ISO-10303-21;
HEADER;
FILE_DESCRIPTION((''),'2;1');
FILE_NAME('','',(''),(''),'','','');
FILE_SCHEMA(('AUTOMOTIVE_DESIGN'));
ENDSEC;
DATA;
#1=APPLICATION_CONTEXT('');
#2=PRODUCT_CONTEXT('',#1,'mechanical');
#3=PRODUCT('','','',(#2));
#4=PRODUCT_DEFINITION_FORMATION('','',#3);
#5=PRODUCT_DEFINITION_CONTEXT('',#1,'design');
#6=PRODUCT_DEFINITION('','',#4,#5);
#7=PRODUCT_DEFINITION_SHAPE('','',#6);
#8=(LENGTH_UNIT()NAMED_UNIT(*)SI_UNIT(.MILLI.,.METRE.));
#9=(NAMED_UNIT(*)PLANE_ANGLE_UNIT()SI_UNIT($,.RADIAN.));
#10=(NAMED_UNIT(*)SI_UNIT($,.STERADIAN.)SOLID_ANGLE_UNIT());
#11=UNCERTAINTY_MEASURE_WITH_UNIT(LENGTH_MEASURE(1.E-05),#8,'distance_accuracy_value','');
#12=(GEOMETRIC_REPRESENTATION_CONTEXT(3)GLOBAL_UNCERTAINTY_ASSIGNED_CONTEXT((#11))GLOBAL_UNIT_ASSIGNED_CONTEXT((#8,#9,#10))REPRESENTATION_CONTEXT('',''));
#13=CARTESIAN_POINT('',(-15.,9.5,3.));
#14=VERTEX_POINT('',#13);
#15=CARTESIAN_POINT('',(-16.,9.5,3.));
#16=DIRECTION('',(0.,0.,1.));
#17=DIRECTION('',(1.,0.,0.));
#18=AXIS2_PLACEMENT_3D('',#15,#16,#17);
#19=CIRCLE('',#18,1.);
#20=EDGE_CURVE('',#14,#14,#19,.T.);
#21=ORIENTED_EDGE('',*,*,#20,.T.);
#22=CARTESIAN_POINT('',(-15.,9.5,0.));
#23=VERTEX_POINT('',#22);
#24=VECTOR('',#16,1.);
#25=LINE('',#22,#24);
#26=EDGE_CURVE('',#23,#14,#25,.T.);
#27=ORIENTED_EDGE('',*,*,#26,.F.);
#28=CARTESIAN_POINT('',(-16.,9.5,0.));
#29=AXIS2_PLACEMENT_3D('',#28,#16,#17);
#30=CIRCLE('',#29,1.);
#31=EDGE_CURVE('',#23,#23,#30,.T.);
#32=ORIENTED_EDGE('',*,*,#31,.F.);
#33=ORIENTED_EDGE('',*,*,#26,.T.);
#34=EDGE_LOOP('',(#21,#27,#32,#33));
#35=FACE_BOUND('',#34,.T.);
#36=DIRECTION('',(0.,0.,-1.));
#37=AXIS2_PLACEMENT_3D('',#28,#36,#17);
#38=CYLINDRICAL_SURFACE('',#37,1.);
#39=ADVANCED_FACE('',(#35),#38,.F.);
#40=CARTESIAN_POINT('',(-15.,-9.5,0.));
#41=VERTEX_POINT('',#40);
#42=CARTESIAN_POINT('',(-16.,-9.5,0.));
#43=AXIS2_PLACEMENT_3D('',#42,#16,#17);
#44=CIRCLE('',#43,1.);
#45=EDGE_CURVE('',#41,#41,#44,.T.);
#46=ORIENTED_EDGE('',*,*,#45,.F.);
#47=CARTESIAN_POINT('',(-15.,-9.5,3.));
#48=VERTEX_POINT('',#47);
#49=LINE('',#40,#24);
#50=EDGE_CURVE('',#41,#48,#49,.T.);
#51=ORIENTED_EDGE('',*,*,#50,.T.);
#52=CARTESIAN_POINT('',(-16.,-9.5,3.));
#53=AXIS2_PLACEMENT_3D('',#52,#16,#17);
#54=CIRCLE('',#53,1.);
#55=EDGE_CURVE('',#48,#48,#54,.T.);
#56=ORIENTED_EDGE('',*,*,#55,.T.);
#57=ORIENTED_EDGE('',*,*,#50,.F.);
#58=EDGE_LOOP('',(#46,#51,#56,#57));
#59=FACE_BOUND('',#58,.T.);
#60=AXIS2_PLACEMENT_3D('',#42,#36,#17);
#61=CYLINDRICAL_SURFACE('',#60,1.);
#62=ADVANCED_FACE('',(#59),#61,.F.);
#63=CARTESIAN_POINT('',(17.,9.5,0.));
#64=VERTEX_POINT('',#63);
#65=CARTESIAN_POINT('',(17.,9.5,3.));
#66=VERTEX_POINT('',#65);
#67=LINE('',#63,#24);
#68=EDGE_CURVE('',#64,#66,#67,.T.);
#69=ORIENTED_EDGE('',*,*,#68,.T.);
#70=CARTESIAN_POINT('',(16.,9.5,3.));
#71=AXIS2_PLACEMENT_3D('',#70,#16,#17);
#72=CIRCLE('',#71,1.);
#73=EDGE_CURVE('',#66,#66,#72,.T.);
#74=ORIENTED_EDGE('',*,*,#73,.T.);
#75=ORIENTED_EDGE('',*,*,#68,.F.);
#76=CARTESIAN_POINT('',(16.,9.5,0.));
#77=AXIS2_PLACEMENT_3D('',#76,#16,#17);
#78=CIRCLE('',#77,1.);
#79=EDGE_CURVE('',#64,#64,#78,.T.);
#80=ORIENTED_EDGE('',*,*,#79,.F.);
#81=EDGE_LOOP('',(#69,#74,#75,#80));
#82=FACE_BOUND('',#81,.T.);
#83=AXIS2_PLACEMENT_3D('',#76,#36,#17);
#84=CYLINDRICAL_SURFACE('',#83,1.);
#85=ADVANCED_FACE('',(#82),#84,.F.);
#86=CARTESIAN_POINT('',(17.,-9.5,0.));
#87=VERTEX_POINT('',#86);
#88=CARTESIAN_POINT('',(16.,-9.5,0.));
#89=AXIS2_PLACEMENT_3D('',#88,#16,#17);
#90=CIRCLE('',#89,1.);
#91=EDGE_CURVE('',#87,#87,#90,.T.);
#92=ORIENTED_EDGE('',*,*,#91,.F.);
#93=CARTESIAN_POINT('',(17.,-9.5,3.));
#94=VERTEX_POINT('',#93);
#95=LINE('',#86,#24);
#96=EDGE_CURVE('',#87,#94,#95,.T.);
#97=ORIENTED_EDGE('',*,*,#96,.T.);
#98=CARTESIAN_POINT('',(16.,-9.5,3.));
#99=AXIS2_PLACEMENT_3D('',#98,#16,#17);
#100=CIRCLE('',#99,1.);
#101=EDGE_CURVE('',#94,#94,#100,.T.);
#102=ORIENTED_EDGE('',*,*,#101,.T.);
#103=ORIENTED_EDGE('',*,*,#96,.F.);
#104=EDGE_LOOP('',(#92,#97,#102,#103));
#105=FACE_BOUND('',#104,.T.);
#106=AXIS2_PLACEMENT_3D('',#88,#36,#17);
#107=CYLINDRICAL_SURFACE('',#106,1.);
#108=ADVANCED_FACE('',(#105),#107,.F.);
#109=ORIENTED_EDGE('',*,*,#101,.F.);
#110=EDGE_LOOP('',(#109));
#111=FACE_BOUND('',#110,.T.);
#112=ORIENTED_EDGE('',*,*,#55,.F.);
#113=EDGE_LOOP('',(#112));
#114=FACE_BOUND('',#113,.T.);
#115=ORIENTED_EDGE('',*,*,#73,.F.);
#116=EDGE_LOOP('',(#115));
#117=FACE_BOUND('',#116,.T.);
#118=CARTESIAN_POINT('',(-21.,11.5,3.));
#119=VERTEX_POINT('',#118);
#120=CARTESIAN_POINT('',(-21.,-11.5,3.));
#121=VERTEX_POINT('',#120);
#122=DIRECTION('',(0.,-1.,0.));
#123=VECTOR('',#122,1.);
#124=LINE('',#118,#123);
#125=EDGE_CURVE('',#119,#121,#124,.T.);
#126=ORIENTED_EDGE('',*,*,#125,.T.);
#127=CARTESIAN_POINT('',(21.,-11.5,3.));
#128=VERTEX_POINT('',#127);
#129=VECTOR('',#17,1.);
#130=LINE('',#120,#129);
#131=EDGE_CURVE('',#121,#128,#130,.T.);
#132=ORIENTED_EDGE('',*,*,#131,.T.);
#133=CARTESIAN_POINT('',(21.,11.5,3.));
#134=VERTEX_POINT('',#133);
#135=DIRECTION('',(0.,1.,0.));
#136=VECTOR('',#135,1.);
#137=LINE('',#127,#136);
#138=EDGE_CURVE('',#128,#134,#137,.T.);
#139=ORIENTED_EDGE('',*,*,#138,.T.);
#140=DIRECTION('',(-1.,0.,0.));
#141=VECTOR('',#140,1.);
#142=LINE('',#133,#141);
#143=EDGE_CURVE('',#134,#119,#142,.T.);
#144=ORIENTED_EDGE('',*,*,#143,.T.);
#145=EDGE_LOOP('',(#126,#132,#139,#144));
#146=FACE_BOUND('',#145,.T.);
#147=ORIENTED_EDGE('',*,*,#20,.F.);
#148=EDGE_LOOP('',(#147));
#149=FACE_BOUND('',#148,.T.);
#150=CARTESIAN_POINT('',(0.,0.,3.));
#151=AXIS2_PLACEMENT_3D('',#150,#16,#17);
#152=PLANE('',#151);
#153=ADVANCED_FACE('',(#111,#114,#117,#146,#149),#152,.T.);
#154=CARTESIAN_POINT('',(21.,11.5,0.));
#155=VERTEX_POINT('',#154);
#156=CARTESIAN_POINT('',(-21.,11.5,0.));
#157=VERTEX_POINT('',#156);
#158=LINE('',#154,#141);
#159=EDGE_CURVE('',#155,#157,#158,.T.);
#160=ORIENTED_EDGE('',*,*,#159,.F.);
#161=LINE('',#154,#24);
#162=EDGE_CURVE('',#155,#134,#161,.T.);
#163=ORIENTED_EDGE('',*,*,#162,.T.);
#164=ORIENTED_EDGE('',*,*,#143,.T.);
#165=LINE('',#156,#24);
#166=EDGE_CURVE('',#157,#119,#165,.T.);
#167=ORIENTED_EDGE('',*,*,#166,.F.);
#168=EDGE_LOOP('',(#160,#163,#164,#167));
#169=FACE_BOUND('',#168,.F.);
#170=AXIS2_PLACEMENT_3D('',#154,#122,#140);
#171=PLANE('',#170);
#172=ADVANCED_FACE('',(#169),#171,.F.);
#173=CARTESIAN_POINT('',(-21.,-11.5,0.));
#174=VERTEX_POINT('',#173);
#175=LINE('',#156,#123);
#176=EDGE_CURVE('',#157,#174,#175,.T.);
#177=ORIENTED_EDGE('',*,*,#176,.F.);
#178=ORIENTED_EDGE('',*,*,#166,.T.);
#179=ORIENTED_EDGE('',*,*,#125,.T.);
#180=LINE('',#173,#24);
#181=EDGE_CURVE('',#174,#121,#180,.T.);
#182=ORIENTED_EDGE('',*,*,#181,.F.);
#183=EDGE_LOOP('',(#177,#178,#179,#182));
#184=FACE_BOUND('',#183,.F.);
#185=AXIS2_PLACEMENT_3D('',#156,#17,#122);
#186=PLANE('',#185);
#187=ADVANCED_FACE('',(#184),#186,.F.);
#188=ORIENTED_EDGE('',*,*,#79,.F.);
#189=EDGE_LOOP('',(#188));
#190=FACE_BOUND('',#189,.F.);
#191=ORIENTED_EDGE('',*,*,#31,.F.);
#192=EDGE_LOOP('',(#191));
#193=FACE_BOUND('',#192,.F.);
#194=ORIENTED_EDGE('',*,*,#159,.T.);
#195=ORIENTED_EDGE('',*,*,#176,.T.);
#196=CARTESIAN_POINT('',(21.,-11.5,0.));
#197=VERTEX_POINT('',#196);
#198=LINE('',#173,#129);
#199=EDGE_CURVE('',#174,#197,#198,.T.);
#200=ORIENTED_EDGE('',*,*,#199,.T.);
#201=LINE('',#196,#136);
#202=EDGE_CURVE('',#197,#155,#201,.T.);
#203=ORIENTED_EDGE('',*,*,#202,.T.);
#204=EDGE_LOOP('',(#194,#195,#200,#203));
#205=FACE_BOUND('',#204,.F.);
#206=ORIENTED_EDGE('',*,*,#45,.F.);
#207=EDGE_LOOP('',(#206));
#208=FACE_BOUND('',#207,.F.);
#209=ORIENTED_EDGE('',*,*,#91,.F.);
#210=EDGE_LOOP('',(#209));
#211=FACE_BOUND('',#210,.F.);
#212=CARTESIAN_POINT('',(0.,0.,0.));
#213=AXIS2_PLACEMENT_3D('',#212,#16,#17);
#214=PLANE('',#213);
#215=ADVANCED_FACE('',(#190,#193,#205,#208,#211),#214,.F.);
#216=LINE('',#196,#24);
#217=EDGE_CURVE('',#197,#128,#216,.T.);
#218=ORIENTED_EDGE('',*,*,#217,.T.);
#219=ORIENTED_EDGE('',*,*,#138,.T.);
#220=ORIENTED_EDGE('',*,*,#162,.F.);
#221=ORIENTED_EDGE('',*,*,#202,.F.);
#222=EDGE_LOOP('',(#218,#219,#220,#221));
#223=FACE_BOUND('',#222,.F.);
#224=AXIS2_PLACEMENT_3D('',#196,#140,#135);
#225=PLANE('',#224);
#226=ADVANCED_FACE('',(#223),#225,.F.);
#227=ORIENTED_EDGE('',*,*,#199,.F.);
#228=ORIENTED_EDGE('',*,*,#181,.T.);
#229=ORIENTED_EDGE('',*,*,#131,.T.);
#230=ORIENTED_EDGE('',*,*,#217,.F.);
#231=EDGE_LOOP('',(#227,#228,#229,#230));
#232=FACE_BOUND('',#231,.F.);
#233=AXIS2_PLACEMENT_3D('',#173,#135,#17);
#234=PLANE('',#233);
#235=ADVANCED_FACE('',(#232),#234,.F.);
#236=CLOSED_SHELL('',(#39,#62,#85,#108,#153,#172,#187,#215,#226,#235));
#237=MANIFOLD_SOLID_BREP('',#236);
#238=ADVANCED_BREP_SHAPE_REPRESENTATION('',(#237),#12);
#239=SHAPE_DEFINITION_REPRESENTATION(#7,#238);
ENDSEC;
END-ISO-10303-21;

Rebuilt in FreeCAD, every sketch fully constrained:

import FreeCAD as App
import Part
import Sketcher

V = App.Vector


def add_polygon(sketch, points):
    """Adds a closed chain of lines whose ends are joined by coincident constraints."""
    first, n = sketch.GeometryCount, len(points)
    for a, b in zip(points, points[1:] + points[:1]):
        sketch.addGeometry(Part.LineSegment(App.Vector(*a, 0), App.Vector(*b, 0)), False)
    for i in range(n):
        sketch.addConstraint(Sketcher.Constraint("Coincident", first + i, 2, first + (i + 1) % n, 1))

doc = App.newDocument("Part")
params = doc.addObject("Spreadsheet::Sheet", "Params")
for row, (alias, value) in enumerate([
    ("sketch1_diameter", "2 mm"),
    ("sketch1_width", "42 mm"),
    ("sketch1_height", "23 mm"),
    ("pad1_length", "3 mm"),
], start=1):
    params.set(f"A{row}", alias)
    params.set(f"B{row}", "=" + value)
    params.setAlias(f"B{row}", alias)

body = doc.addObject("PartDesign::Body", "Body")

# Sketch on XY plane
sketch1 = body.newObject("Sketcher::SketchObject", "Sketch")
sketch1.AttachmentSupport = (doc.getObject("XY_Plane"), [""])
sketch1.MapMode = "FlatFace"
add_polygon(sketch1, [(-21, 11.5), (-21, -11.5), (21, -11.5), (21, 11.5)])  # lines 0-3
sketch1.addGeometry(Part.Circle(V(-16, -9.5, 0), V(0, 0, 1), 1), False)  # 4
sketch1.addGeometry(Part.Circle(V(16, -9.5, 0), V(0, 0, 1), 1), False)  # 5
sketch1.addGeometry(Part.Circle(V(-16, 9.5, 0), V(0, 0, 1), 1), False)  # 6
sketch1.addGeometry(Part.Circle(V(16, 9.5, 0), V(0, 0, 1), 1), False)  # 7
sketch1.addConstraint(Sketcher.Constraint("Vertical", 0))
sketch1.addConstraint(Sketcher.Constraint("Horizontal", 1))
sketch1.addConstraint(Sketcher.Constraint("Vertical", 2))
sketch1.addConstraint(Sketcher.Constraint("Horizontal", 3))
sketch1.addConstraint(Sketcher.Constraint("Equal", 4, 5))
sketch1.addConstraint(Sketcher.Constraint("Equal", 5, 6))
sketch1.addConstraint(Sketcher.Constraint("Equal", 6, 7))
sketch1.addConstraint(Sketcher.Constraint("Symmetric", 5, 3, 6, 3, -1, 1))
sketch1.addConstraint(Sketcher.Constraint("Symmetric", 4, 3, 7, 3, -1, 1))
sketch1.addConstraint(Sketcher.Constraint("Symmetric", 0, 2, 2, 2, -1, 1))
sketch1.addConstraint(Sketcher.Constraint("Symmetric", 4, 3, 5, 3, -2))
sketch1.addConstraint(Sketcher.Constraint("Diameter", 4, 2.0))
sketch1.addConstraint(Sketcher.Constraint("DistanceX", 1, 1, 1, 2, 42.0))
sketch1.addConstraint(Sketcher.Constraint("DistanceY", 0, 2, 0, 1, 23.0))
sketch1.addConstraint(Sketcher.Constraint("DistanceX", 0, 2, 4, 3, 5.0))
sketch1.addConstraint(Sketcher.Constraint("DistanceY", 0, 2, 4, 3, 2.0))
sketch1.setExpression("Constraints[15]", "Params.sketch1_diameter")
sketch1.setExpression("Constraints[16]", "Params.sketch1_width")
sketch1.setExpression("Constraints[17]", "Params.sketch1_height")
pad1 = body.newObject("PartDesign::Pad", "Pad")
pad1.Profile = sketch1
pad1.setExpression("Length", "Params.pad1_length")

doc.recompute()
